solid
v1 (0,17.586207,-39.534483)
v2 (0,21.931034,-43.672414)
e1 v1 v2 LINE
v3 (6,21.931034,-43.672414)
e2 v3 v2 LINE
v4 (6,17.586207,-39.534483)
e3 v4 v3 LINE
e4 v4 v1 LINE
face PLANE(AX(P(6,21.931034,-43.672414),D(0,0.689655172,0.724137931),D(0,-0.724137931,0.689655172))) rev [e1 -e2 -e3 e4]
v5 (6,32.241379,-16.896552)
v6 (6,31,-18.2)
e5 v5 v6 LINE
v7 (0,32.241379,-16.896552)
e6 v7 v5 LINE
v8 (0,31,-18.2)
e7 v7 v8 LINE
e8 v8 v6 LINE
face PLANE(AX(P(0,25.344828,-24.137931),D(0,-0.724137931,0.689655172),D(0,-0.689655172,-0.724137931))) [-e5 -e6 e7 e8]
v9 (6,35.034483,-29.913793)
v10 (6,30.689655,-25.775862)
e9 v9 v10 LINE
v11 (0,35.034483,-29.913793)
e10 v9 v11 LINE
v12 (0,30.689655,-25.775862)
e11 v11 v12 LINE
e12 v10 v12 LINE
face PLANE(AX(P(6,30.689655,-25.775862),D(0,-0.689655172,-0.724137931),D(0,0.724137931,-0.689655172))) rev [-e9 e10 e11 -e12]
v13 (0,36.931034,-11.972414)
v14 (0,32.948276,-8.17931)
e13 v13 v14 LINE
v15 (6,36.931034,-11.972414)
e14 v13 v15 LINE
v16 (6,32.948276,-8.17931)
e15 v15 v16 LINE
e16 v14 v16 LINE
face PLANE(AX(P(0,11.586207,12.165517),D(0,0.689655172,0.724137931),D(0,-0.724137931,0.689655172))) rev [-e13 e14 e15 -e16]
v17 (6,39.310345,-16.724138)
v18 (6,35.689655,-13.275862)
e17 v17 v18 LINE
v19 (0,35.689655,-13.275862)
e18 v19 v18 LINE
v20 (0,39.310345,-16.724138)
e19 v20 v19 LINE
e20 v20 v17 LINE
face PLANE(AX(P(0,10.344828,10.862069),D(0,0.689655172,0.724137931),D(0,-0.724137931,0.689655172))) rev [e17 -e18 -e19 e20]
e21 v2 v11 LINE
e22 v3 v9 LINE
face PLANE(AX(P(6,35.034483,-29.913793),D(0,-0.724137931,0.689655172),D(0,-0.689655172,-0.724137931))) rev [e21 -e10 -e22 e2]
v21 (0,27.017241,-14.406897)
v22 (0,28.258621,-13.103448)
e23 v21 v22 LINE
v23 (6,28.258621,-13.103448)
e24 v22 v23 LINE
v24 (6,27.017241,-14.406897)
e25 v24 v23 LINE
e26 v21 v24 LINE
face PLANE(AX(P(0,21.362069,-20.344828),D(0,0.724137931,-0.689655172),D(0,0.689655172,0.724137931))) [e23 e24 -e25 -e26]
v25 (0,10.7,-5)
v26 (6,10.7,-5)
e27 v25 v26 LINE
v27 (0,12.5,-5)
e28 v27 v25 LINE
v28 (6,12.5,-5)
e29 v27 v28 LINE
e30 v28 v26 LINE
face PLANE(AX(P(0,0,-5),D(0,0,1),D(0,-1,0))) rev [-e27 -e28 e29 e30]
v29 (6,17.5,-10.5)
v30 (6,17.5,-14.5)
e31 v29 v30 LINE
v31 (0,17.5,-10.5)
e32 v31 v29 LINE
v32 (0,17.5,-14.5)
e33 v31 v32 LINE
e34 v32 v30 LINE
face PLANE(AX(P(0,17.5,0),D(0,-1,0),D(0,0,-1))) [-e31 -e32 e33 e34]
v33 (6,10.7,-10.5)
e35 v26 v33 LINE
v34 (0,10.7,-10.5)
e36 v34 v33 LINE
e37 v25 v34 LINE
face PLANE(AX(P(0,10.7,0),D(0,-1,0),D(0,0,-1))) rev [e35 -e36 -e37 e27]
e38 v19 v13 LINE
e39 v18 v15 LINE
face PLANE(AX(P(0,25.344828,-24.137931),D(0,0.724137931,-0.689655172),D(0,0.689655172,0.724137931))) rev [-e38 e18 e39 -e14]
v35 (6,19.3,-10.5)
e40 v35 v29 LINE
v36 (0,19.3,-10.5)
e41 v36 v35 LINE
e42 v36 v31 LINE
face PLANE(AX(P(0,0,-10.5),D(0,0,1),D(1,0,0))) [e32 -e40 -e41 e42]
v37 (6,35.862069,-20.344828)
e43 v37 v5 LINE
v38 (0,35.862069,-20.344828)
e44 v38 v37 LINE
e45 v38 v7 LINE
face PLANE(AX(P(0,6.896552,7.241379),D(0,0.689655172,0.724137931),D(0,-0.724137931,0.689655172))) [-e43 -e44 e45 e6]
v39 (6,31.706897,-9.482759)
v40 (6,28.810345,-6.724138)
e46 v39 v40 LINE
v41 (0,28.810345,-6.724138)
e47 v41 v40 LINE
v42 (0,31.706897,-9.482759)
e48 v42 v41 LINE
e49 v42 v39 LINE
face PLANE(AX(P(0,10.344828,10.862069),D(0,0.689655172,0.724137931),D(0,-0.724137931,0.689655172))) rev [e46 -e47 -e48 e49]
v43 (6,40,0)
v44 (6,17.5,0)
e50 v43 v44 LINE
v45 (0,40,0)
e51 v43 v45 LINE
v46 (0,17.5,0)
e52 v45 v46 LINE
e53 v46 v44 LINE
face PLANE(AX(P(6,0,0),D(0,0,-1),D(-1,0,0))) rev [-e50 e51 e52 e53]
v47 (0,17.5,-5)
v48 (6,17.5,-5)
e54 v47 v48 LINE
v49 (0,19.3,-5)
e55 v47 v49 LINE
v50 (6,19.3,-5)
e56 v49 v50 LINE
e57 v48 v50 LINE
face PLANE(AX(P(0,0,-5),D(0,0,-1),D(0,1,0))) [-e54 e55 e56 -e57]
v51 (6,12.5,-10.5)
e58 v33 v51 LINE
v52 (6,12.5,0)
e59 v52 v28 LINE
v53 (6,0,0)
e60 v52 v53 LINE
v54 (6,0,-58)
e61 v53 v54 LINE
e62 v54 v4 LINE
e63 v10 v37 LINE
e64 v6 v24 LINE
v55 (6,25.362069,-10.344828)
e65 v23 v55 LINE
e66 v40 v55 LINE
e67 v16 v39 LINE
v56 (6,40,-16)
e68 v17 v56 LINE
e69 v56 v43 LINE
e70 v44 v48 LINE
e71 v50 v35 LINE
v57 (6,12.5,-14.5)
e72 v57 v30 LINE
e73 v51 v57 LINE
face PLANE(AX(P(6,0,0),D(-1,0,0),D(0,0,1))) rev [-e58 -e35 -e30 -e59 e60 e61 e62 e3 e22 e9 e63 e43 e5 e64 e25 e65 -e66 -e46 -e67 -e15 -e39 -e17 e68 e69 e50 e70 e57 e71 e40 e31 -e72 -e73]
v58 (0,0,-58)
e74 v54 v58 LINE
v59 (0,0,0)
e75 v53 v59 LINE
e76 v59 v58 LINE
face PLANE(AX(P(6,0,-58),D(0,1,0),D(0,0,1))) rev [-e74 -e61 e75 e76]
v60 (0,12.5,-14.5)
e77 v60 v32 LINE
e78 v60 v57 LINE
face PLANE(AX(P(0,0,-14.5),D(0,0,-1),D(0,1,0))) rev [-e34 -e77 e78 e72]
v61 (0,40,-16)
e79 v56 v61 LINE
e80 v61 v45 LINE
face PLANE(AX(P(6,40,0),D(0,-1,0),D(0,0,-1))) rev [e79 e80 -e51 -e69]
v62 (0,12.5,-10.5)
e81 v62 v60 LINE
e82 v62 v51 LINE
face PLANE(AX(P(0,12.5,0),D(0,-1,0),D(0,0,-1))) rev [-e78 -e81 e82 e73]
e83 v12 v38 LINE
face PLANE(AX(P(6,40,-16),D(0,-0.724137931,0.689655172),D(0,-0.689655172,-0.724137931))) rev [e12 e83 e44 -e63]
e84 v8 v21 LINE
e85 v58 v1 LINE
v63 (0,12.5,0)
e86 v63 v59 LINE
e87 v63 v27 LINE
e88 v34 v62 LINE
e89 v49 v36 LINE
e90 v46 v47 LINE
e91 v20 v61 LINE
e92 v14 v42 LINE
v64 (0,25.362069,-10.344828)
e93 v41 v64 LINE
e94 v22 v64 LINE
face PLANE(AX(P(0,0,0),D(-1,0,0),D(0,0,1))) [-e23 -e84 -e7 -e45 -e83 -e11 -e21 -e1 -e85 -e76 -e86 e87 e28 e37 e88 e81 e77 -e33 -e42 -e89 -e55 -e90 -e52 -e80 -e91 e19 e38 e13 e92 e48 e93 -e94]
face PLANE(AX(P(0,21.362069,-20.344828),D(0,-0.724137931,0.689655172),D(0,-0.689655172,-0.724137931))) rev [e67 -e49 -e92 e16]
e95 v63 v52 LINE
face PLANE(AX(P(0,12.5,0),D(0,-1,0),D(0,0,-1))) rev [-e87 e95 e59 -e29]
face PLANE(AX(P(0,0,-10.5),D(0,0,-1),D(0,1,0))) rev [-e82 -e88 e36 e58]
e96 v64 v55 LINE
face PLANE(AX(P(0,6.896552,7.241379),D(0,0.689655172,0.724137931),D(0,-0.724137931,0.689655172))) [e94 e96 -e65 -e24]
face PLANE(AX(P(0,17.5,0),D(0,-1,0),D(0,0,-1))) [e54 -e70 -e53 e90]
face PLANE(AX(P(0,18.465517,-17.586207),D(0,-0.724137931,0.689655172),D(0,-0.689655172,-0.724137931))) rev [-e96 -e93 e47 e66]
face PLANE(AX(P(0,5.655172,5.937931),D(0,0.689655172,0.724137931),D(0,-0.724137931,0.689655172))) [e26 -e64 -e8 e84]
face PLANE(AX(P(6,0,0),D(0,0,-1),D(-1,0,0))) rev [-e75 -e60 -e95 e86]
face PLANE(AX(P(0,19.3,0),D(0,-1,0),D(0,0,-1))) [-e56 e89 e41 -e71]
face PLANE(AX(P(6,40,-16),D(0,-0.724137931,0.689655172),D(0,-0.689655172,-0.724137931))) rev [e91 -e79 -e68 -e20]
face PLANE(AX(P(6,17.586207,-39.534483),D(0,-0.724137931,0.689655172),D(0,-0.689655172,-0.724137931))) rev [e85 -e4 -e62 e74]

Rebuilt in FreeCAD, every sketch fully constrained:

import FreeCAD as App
import Part
import Sketcher
from FreeCAD import Vector
Q = App.Units.Quantity


def add_polygon(sketch, points):
    """Adds a closed chain of lines whose ends are joined by coincident constraints."""
    first, n = sketch.GeometryCount, len(points)
    for a, b in zip(points, points[1:] + points[:1]):
        sketch.addGeometry(Part.LineSegment(App.Vector(*a, 0), App.Vector(*b, 0)), False)
    for i in range(n):
        sketch.addConstraint(Sketcher.Constraint("Coincident", first + i, 2, first + (i + 1) % n, 1))

doc = App.newDocument("Part")
body = doc.addObject("PartDesign::Body", "Body")

# Sketch on YZ plane
sketch1 = body.newObject("Sketcher::SketchObject", "Sketch")
sketch1.AttachmentSupport = (doc.getObject("YZ_Plane"), [""])
sketch1.MapMode = "FlatFace"
add_polygon(sketch1, [(40, 0), (0, 0), (0, -58), (18, -40), (22, -44), (35, -30), (31, -26), (40, -16)])  # lines 0-7
sketch1.addConstraint([
    Sketcher.Constraint("Horizontal", 0),
    Sketcher.Constraint("Vertical", 1),
    Sketcher.Constraint("Vertical", 7),
    Sketcher.Constraint("Coincident", 0, 2, -1, 1),
    Sketcher.Constraint("Perpendicular", 2, 3),
    Sketcher.Constraint("Perpendicular", 3, 4),
    Sketcher.Constraint("Perpendicular", 4, 5),
    Sketcher.Constraint("Perpendicular", 5, 6),
    Sketcher.Constraint("Equal", 3, 5),
    Sketcher.Constraint("DistanceX", 0, 2, 0, 1, Q("40 mm")),
    Sketcher.Constraint("DistanceY", 1, 2, 1, 1, Q("58 mm")),
    Sketcher.Constraint("DistanceY", 7, 1, 7, 2, Q("16 mm")),
    Sketcher.Constraint("Distance", 3, Q("6 mm")),
    Sketcher.Constraint("Distance", 4, Q("19 mm")),
    Sketcher.Constraint("Distance", 2, Q("25.5 mm")),
])
pad1 = body.newObject("PartDesign::Pad", "Pad")
pad1.Profile = sketch1
pad1.Length = 6

# Sketch on YZ plane
sketch2 = body.newObject("Sketcher::SketchObject", "Sketch001")
sketch2.AttachmentSupport = (doc.getObject("YZ_Plane"), [""])
sketch2.MapMode = "FlatFace"
sketch2.AttachmentOffset = App.Placement(Vector(0, 0, 6), App.Rotation())
add_polygon(sketch2, [(17.5, 0), (12.5, 0), (12.5, -5), (10.7, -5), (10.7, -10.5), (12.5, -10.5), (12.5, -14.5), (17.5, -14.5), (17.5, -10.5), (19.3, -10.5), (19.3, -5), (17.5, -5)])  # lines 0-11
add_polygon(sketch2, [(35.9, -20.3), (39.3, -16.7), (35.7, -13.3), (36.9, -12), (32.9, -8.2), (31.7, -9.5), (28.8, -6.7), (25.4, -10.3), (28.3, -13.1), (27, -14.4), (31, -18.2), (32.2, -16.9)])  # lines 12-23
sketch2.addConstraint([
    Sketcher.Constraint("Horizontal", 0),
    Sketcher.Constraint("Vertical", 1),
    Sketcher.Constraint("Horizontal", 2),
    Sketcher.Constraint("Vertical", 3),
    Sketcher.Constraint("Horizontal", 4),
    Sketcher.Constraint("Vertical", 5),
    Sketcher.Constraint("Horizontal", 6),
    Sketcher.Constraint("Vertical", 7),
    Sketcher.Constraint("Horizontal", 8),
    Sketcher.Constraint("Vertical", 9),
    Sketcher.Constraint("Horizontal", 10),
    Sketcher.Constraint("Vertical", 11),
    Sketcher.Constraint("PointOnObject", 0, 2, -1),
    Sketcher.Constraint("Perpendicular", 12, 13),
    Sketcher.Constraint("Perpendicular", 13, 14),
    Sketcher.Constraint("Perpendicular", 14, 15),
    Sketcher.Constraint("Perpendicular", 15, 16),
    Sketcher.Constraint("Perpendicular", 16, 17),
    Sketcher.Constraint("Perpendicular", 17, 18),
    Sketcher.Constraint("Perpendicular", 18, 19),
    Sketcher.Constraint("Perpendicular", 19, 20),
    Sketcher.Constraint("Perpendicular", 20, 21),
    Sketcher.Constraint("Perpendicular", 21, 22),
    Sketcher.Constraint("Perpendicular", 22, 23),
    Sketcher.Constraint("Horizontal", 4, 2, 7, 2),
    Sketcher.Constraint("Horizontal", 2, 2, 9, 2),
    Sketcher.Constraint("Vertical", 1, 2, 4, 2),
    Sketcher.Constraint("Vertical", 7, 2, 10, 2),
    Sketcher.Constraint("Equal", 4, 8),
    Sketcher.Constraint("Equal", 6, 1),
    Sketcher.Constraint("Equal", 12, 13),
    Sketcher.Constraint("Equal", 14, 16),
    Sketcher.Constraint("Equal", 13, 18),
    Sketcher.Constraint("Equal", 17, 19),
    Sketcher.Constraint("Equal", 16, 20),
    Sketcher.Constraint("Equal", 15, 21),
    Sketcher.Constraint("DistanceX", 0, 2, 0, 1, Q("5 mm")),
    Sketcher.Constraint("DistanceY", 5, 2, 5, 1, Q("4 mm")),
    Sketcher.Constraint("Distance", 12, Q("5 mm")),
    Sketcher.Constraint("Distance", 17, Q("4 mm")),
    Sketcher.Constraint("DistanceX", 2, 2, 2, 1, Q("1.8 mm")),
    Sketcher.Constraint("DistanceY", 3, 2, 3, 1, Q("5.5 mm")),
    Sketcher.Constraint("DistanceX", -1, 1, 21, 2, Q("31 mm")),
    Sketcher.Constraint("Distance", 14, Q("1.8 mm")),
    Sketcher.Constraint("Distance", 15, Q("5.5 mm")),
    Sketcher.Constraint("DistanceX", -1, 1, 0, 2, Q("12.5 mm")),
    Sketcher.Constraint("DistanceY", 21, 2, -1, 1, Q("18.2 mm")),
    Sketcher.Constraint("DistanceY", 15, 2, -1, 1, Q("8.17931 mm")),
])
pocket1 = body.newObject("PartDesign::Pocket", "Pocket")
pocket1.Profile = sketch2
pocket1.Length = 6

doc.recompute()
